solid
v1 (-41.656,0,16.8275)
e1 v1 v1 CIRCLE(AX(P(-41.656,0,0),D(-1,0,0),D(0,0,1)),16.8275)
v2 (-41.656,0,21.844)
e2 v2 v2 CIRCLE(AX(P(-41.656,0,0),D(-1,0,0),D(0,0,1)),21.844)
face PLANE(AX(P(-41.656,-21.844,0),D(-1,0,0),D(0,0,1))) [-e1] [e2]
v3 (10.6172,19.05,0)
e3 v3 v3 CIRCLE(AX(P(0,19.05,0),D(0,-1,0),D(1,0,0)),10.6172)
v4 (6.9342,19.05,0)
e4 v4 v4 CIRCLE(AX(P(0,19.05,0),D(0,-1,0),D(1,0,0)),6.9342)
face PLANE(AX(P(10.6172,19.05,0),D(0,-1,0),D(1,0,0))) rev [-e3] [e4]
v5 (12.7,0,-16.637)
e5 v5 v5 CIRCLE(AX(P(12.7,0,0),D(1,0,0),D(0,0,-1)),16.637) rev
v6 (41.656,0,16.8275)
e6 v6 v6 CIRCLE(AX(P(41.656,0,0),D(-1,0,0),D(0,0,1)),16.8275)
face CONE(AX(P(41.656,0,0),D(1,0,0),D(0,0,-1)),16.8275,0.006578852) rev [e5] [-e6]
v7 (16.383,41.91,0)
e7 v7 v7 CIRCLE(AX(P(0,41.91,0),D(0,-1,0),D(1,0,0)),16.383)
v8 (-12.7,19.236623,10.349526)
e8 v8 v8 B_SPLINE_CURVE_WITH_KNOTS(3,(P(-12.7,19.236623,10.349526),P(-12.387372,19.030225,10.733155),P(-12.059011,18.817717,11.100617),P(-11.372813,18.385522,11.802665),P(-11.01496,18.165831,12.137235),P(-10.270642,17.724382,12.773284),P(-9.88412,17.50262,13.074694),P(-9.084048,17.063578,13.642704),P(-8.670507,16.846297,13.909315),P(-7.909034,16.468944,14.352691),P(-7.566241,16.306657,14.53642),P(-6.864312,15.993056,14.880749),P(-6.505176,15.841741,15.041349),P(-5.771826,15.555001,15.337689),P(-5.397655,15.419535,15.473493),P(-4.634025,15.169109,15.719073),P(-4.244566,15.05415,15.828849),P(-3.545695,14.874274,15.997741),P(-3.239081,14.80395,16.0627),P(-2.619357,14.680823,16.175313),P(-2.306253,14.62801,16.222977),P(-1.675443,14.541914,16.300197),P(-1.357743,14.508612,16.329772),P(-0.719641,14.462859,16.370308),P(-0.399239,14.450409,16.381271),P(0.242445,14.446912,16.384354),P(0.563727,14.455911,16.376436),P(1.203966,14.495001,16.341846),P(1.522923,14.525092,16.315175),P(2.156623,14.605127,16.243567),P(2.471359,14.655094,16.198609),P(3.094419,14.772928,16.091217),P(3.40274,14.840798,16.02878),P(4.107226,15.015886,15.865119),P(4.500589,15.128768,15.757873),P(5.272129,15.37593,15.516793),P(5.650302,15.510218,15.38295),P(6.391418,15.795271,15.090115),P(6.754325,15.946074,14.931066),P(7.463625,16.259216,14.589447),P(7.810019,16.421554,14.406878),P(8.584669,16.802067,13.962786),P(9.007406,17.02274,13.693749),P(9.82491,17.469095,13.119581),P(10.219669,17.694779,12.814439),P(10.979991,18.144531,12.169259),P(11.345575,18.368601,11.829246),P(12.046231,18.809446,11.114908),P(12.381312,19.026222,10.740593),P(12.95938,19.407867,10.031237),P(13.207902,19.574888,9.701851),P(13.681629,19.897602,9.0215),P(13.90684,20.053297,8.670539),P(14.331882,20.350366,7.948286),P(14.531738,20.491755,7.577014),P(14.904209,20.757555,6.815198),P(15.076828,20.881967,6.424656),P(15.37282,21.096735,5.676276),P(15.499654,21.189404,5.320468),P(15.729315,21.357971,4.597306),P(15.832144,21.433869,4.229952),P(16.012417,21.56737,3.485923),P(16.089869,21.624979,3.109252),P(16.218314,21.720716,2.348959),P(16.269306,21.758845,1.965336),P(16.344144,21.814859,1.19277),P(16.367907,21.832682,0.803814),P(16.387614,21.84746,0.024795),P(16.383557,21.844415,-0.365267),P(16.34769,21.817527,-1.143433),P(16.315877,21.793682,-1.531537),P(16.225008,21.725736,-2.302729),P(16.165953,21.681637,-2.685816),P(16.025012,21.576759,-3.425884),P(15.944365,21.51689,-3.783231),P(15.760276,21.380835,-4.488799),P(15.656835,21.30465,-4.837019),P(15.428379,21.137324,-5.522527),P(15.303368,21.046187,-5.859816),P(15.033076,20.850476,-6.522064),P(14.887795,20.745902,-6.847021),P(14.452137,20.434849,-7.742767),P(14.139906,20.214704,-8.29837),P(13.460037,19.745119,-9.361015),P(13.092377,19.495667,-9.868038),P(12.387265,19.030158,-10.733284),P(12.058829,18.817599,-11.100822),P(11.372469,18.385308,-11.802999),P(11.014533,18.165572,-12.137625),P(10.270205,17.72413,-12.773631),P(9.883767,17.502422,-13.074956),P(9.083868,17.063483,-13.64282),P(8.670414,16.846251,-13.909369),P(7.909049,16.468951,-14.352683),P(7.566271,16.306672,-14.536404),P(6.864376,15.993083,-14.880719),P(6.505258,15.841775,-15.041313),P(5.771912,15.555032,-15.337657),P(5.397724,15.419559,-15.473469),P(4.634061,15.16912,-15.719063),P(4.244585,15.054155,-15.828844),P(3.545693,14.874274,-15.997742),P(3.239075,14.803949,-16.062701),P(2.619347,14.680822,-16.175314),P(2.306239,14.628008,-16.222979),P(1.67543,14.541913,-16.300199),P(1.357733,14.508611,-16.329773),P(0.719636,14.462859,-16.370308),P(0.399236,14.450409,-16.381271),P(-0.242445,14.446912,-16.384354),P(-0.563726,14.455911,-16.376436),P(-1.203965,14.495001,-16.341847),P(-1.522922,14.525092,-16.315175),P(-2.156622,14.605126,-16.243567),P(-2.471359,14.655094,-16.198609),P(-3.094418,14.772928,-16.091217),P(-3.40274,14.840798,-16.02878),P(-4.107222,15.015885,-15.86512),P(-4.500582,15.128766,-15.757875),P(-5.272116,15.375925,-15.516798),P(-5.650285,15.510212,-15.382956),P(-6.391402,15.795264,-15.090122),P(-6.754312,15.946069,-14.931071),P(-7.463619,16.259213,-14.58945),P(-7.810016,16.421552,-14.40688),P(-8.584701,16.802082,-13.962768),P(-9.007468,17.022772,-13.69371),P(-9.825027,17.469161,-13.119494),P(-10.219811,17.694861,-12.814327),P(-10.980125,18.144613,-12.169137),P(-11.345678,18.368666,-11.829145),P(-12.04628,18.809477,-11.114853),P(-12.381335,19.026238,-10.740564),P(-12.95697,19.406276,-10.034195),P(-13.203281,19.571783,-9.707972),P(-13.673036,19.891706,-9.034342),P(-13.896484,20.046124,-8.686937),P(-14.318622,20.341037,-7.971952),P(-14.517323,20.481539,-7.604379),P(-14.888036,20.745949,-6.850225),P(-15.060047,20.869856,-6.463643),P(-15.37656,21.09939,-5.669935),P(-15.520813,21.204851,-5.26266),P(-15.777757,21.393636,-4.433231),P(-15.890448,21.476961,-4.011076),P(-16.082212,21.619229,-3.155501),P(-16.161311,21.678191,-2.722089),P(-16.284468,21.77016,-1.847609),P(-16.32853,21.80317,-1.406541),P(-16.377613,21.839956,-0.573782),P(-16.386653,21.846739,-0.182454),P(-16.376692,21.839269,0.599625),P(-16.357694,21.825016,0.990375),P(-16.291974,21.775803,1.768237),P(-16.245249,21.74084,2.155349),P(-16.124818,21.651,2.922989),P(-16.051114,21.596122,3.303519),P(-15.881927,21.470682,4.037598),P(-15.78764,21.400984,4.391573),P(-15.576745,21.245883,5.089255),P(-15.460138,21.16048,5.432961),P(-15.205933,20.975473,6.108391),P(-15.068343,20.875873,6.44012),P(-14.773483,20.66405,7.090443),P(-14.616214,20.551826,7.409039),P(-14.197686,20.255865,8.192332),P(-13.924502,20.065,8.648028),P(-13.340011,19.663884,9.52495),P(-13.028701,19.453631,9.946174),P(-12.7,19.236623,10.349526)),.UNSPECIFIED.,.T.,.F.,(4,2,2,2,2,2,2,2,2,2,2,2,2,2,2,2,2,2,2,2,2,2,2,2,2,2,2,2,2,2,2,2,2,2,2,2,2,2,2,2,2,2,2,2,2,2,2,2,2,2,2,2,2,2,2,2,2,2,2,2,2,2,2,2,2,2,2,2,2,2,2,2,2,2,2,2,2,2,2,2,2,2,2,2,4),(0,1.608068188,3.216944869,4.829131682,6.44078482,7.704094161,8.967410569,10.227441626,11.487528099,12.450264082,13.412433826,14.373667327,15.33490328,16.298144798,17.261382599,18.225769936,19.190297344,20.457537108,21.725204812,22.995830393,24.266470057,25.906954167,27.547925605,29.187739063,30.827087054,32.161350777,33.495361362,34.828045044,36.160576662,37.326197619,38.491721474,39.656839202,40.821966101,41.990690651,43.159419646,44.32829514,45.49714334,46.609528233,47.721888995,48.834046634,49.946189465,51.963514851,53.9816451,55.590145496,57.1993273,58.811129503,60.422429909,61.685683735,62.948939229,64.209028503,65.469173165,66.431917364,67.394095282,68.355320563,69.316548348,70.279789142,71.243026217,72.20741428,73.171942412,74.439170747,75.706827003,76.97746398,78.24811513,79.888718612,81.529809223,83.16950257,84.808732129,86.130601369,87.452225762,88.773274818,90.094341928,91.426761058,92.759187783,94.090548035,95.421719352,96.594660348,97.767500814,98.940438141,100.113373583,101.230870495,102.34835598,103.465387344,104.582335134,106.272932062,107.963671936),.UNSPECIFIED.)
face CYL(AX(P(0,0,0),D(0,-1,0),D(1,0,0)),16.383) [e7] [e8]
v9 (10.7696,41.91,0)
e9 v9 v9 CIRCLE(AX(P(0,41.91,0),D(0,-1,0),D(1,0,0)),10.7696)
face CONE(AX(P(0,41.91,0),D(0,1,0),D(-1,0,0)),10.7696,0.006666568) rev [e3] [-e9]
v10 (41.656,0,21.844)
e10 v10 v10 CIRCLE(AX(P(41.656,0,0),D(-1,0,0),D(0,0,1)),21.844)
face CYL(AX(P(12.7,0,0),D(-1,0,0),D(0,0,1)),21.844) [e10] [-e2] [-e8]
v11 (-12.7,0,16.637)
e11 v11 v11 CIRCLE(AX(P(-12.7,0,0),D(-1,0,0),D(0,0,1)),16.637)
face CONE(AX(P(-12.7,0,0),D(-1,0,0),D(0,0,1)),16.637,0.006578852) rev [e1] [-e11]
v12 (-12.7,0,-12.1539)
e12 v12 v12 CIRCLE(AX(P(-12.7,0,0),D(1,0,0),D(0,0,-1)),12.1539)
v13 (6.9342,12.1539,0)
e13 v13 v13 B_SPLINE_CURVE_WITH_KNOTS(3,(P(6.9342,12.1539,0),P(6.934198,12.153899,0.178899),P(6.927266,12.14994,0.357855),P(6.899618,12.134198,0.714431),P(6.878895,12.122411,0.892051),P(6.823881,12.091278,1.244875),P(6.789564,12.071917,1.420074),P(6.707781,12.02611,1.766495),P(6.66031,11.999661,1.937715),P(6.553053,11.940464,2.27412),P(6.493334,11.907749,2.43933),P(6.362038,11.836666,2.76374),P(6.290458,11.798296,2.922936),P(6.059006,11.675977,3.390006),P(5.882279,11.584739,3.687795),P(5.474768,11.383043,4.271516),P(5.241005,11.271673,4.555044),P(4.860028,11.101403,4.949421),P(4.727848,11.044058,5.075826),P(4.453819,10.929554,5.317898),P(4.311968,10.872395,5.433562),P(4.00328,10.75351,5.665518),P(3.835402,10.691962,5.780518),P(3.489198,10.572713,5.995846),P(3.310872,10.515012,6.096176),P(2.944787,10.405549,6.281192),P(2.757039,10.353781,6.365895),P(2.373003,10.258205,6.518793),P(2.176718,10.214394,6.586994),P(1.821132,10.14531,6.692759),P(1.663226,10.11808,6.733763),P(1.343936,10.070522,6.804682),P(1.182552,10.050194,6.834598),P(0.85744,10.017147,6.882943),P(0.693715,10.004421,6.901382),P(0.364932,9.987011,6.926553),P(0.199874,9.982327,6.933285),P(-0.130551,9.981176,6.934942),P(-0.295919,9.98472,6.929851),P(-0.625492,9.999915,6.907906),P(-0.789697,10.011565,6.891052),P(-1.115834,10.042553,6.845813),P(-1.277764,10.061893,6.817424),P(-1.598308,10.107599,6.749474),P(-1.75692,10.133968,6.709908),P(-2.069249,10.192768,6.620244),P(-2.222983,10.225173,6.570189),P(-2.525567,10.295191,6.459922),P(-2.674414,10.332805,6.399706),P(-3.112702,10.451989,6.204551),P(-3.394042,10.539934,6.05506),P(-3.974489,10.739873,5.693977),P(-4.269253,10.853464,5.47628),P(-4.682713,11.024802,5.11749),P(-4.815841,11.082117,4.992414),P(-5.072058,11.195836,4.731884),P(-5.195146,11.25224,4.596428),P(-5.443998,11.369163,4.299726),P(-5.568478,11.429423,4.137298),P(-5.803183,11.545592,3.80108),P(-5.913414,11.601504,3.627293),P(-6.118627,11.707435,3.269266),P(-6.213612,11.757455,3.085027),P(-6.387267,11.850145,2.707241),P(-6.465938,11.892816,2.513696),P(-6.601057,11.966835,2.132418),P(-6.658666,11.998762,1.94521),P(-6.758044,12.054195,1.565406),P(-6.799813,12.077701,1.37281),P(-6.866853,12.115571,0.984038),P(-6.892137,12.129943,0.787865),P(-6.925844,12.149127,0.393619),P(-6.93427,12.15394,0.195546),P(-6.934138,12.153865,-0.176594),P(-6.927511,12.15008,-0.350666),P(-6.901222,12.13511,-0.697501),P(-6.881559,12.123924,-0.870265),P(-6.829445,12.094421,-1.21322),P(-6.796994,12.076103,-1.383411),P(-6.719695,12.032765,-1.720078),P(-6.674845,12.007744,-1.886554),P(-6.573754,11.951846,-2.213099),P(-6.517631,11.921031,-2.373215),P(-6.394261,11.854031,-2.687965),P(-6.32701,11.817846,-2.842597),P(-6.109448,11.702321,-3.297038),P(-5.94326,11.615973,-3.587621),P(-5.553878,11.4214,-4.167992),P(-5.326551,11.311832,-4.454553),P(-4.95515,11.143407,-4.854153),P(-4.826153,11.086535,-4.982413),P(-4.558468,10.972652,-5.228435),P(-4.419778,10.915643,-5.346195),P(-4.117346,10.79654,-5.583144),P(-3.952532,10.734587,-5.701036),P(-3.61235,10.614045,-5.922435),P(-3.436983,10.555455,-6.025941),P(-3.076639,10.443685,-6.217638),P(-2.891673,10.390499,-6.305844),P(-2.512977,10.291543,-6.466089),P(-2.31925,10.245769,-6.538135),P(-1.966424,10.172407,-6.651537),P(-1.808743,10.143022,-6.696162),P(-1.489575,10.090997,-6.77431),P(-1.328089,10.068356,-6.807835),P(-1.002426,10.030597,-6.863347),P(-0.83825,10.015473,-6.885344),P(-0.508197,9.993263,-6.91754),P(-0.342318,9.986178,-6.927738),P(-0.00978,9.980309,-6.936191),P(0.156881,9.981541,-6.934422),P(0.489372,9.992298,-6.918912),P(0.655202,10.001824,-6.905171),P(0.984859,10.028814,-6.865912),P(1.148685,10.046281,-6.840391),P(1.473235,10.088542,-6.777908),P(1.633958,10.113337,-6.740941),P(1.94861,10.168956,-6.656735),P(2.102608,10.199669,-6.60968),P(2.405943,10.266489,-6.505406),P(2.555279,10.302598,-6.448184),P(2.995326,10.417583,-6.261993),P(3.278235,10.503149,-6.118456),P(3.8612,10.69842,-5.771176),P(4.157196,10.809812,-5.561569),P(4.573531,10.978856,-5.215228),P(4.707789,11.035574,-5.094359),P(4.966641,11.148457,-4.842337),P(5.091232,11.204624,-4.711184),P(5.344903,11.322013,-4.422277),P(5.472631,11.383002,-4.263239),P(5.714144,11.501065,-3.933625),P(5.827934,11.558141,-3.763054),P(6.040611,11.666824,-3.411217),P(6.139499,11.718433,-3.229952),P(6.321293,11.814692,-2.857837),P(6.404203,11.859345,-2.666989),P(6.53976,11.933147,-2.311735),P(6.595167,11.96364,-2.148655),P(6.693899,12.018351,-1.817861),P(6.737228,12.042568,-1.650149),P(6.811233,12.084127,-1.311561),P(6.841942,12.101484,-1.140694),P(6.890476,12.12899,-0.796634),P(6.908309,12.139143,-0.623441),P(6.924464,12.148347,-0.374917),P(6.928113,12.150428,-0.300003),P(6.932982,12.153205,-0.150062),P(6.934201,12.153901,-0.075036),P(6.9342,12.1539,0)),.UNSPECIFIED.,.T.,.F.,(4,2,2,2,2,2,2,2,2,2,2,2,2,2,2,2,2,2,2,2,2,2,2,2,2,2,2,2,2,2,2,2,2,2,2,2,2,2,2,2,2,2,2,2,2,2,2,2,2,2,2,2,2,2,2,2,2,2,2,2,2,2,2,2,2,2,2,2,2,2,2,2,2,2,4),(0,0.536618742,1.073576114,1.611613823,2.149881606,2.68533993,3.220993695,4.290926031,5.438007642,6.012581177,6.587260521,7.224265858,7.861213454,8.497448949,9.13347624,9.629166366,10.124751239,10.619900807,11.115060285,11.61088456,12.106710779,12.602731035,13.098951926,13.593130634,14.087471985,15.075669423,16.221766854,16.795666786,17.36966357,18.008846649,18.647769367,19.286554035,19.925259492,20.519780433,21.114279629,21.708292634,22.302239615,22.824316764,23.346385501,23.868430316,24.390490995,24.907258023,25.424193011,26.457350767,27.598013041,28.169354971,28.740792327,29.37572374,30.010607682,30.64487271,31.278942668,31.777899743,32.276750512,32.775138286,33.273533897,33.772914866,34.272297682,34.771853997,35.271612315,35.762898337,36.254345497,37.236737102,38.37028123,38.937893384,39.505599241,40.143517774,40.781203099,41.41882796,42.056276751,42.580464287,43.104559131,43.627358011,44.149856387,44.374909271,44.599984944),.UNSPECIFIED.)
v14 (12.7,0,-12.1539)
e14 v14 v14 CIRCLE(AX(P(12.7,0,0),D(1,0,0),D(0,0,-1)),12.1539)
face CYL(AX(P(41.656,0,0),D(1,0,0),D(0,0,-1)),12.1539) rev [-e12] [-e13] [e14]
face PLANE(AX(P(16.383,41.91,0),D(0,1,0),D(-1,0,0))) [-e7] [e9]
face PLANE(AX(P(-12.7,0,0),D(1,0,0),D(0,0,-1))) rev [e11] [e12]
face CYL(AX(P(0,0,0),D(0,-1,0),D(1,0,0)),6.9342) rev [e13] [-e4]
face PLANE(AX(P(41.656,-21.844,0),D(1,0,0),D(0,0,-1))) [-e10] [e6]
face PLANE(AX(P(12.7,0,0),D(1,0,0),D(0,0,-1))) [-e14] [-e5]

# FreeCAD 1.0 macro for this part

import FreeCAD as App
import Part
import Sketcher
from FreeCAD import Vector
Q = App.Units.Quantity


def add_polygon(sketch, points):
    """Adds a closed chain of lines whose ends are joined by coincident constraints."""
    first, n = sketch.GeometryCount, len(points)
    for a, b in zip(points, points[1:] + points[:1]):
        sketch.addGeometry(Part.LineSegment(App.Vector(*a, 0), App.Vector(*b, 0)), False)
    for i in range(n):
        sketch.addConstraint(Sketcher.Constraint("Coincident", first + i, 2, first + (i + 1) % n, 1))

doc = App.newDocument("Part")
body = doc.addObject("PartDesign::Body", "Body")
body.AllowCompound = True

sketch1 = body.newObject("Sketcher::SketchObject", "Sketch")
sketch1.AttachmentSupport = (doc.getObject("XY_Plane"), [""])
sketch1.MapMode = "FlatFace"
add_polygon(sketch1, [(-42, -22), (-13, -22), (-13, -17), (-42, -17)])
add_polygon(sketch1, [(42, -17), (13, -17), (13, -22), (42, -22)])
sketch1.addConstraint(Sketcher.Constraint("Horizontal", 0))
sketch1.addConstraint(Sketcher.Constraint("Vertical", 1))
sketch1.addConstraint(Sketcher.Constraint("Vertical", 3))
sketch1.addConstraint(Sketcher.Constraint("Vertical", 5))
sketch1.addConstraint(Sketcher.Constraint("Horizontal", 6))
sketch1.addConstraint(Sketcher.Constraint("Vertical", 7))
sketch1.addConstraint(Sketcher.Constraint("Symmetric", 1, 2, 4, 2, -2))
sketch1.addConstraint(Sketcher.Constraint("Symmetric", 3, 2, 6, 2, -2))
sketch1.addConstraint(Sketcher.Constraint("Horizontal", 2, 2, 7, 2))
sketch1.addConstraint(Sketcher.Constraint("DistanceX", 1, 2, 4, 2, Q("1 in")))
sketch1.addConstraint(Sketcher.Constraint("DistanceX", 0, 1, 0, 2, Q("1.14 in")))
sketch1.addConstraint(Sketcher.Constraint("DistanceY", 1, 1, 1, 2, Q("0.205 in")))
sketch1.addConstraint(Sketcher.Constraint("DistanceY", 0, 2, -1, 1, Q("0.86 in")))
sketch1.addConstraint(Sketcher.Constraint("DistanceY", 3, 2, 3, 1, Q("0.1975 in")))
revolution = body.newObject("PartDesign::Revolution", "Revolution")
revolution.Profile = sketch1
revolution.ReferenceAxis = (sketch1, ["H_Axis"])
revolution.Angle = 360
body2 = doc.addObject("PartDesign::Body", "Body001")

sketch2 = body2.newObject("Sketcher::SketchObject", "Sketch001")
sketch2.AttachmentSupport = (doc.getObject("XY_Plane001"), [""])
sketch2.MapMode = "FlatFace"
add_polygon(sketch2, [(11, 42), (11, 19), (16, 19), (16, 42)])
sketch2.addConstraint(Sketcher.Constraint("Horizontal", 1))
sketch2.addConstraint(Sketcher.Constraint("Vertical", 2))
sketch2.addConstraint(Sketcher.Constraint("Horizontal", 3))
sketch2.addConstraint(Sketcher.Constraint("DistanceY", 2, 1, 2, 2, Q("0.9 in")))
sketch2.addConstraint(Sketcher.Constraint("DistanceX", 1, 1, 1, 2, Q("0.227 in")))
sketch2.addConstraint(Sketcher.Constraint("DistanceX", 3, 2, 3, 1, Q("0.221 in")))
sketch2.addConstraint(Sketcher.Constraint("DistanceY", -1, 1, 0, 2, Q("0.75 in")))
sketch2.addConstraint(Sketcher.Constraint("DistanceX", -1, 1, 0, 2, Q("0.418 in")))
revolution2 = body2.newObject("PartDesign::Revolution", "Revolution001")
revolution2.Profile = sketch2
revolution2.ReferenceAxis = (sketch2, ["V_Axis"])
revolution2.Angle = 360
doc.recompute()

boolean = body.newObject("PartDesign::Boolean", "Boolean")
boolean.Type = "Fuse"
boolean.addObjects([body2])

sketch3 = body.newObject("Sketcher::SketchObject", "Sketch002")
sketch3.AttachmentSupport = (doc.getObject("YZ_Plane"), [""])
sketch3.MapMode = "FlatFace"
sketch3.AttachmentOffset = App.Placement(Vector(0, 0, -0.5 * 25.4), App.Rotation())
sketch3.addGeometry(Part.Circle(Vector(0, 0, 0), Vector(0, 0, 1), 22), False)
sketch3.addConstraint(Sketcher.Constraint("Coincident", 0, 3, -1, 1))
sketch3.addConstraint(Sketcher.Constraint("Diameter", 0, Q("1.72 in")))
pad1 = body.newObject("PartDesign::Pad", "Pad")
pad1.Profile = sketch3
pad1.Length = Q("1 in")

sketch4 = body.newObject("Sketcher::SketchObject", "Sketch003")
sketch4.AttachmentSupport = (doc.getObject("XZ_Plane"), [""])
sketch4.MapMode = "FlatFace"
sketch4.AttachmentOffset = App.Placement(Vector(0, 0, -0.75 * 25.4), App.Rotation())
sketch4.addGeometry(Part.Circle(Vector(0, 0, 0), Vector(0, 0, 1), 16), False)
sketch4.addConstraint(Sketcher.Constraint("Coincident", 0, 3, -1, 1))
sketch4.addConstraint(Sketcher.Constraint("Diameter", 0, Q("1.29 in")))
pad2 = body.newObject("PartDesign::Pad", "Pad001")
pad2.Profile = sketch4
pad2.Length = Q("0.75 in")

sketch5 = body.newObject("Sketcher::SketchObject", "Sketch004")
sketch5.AttachmentSupport = (doc.getObject("XY_Plane"), [""])
sketch5.MapMode = "FlatFace"
add_polygon(sketch5, [(-41.7, -16.8), (-12.7, -16.6), (-12.7, -12.2), (12.7, -12.2), (12.7, -16.6), (41.7, -16.8), (41.7, 0), (-41.7, 0)])
sketch5.addConstraint(Sketcher.Constraint("Vertical", 1))
sketch5.addConstraint(Sketcher.Constraint("Horizontal", 2))
sketch5.addConstraint(Sketcher.Constraint("Vertical", 3))
sketch5.addConstraint(Sketcher.Constraint("Vertical", 5))
sketch5.addConstraint(Sketcher.Constraint("Horizontal", 6))
sketch5.addConstraint(Sketcher.Constraint("Vertical", 7))
sketch5.addConstraint(Sketcher.Constraint("Symmetric", 5, 2, 6, 2, -1, 1))
sketch5.addConstraint(Sketcher.Constraint("Symmetric", 0, 2, 3, 2, -2))
sketch5.addConstraint(Sketcher.Constraint("Horizontal", 4, 2, 7, 2))
sketch5.addConstraint(Sketcher.Constraint("DistanceX", 2, 1, 2, 2, Q("1 in")))
sketch5.addConstraint(Sketcher.Constraint("DistanceX", 6, 2, 6, 1, Q("3.28 in")))
sketch5.addConstraint(Sketcher.Constraint("DistanceY", 1, 1, 1, 2, Q("0.1765 in")))
sketch5.addConstraint(Sketcher.Constraint("DistanceY", 5, 1, 5, 2, Q("0.6625 in")))
sketch5.addConstraint(Sketcher.Constraint("DistanceY", 0, 2, -1, 1, Q("0.655 in")))
groove = body.newObject("PartDesign::Groove", "Groove")
groove.Profile = sketch5
groove.ReferenceAxis = (sketch5, ["H_Axis"])
groove.Angle = 360

sketch6 = body.newObject("Sketcher::SketchObject", "Sketch005")
sketch6.AttachmentSupport = (doc.getObject("XY_Plane"), [""])
sketch6.MapMode = "FlatFace"
add_polygon(sketch6, [(10.6, 19.1), (10.8, 41.9), (0, 41.9), (0, 0), (6.9, 0), (6.9, 19.1)])
sketch6.addConstraint(Sketcher.Constraint("Horizontal", 1))
sketch6.addConstraint(Sketcher.Constraint("Vertical", 2))
sketch6.addConstraint(Sketcher.Constraint("Horizontal", 3))
sketch6.addConstraint(Sketcher.Constraint("Vertical", 4))
sketch6.addConstraint(Sketcher.Constraint("Horizontal", 5))
sketch6.addConstraint(Sketcher.Constraint("Coincident", 2, 2, -1, 1))
sketch6.addConstraint(Sketcher.Constraint("DistanceY", 2, 2, 2, 1, Q("1.65 in")))
sketch6.addConstraint(Sketcher.Constraint("DistanceY", 4, 1, 4, 2, Q("0.75 in")))
sketch6.addConstraint(Sketcher.Constraint("DistanceX", 1, 2, 1, 1, Q("0.424 in")))
sketch6.addConstraint(Sketcher.Constraint("DistanceX", 3, 1, 3, 2, Q("0.273 in")))
sketch6.addConstraint(Sketcher.Constraint("DistanceX", 5, 1, 5, 2, Q("0.145 in")))
groove2 = body.newObject("PartDesign::Groove", "Groove001")
groove2.Profile = sketch6
groove2.ReferenceAxis = (sketch6, ["V_Axis"])
groove2.Angle = 360

doc.recompute()
